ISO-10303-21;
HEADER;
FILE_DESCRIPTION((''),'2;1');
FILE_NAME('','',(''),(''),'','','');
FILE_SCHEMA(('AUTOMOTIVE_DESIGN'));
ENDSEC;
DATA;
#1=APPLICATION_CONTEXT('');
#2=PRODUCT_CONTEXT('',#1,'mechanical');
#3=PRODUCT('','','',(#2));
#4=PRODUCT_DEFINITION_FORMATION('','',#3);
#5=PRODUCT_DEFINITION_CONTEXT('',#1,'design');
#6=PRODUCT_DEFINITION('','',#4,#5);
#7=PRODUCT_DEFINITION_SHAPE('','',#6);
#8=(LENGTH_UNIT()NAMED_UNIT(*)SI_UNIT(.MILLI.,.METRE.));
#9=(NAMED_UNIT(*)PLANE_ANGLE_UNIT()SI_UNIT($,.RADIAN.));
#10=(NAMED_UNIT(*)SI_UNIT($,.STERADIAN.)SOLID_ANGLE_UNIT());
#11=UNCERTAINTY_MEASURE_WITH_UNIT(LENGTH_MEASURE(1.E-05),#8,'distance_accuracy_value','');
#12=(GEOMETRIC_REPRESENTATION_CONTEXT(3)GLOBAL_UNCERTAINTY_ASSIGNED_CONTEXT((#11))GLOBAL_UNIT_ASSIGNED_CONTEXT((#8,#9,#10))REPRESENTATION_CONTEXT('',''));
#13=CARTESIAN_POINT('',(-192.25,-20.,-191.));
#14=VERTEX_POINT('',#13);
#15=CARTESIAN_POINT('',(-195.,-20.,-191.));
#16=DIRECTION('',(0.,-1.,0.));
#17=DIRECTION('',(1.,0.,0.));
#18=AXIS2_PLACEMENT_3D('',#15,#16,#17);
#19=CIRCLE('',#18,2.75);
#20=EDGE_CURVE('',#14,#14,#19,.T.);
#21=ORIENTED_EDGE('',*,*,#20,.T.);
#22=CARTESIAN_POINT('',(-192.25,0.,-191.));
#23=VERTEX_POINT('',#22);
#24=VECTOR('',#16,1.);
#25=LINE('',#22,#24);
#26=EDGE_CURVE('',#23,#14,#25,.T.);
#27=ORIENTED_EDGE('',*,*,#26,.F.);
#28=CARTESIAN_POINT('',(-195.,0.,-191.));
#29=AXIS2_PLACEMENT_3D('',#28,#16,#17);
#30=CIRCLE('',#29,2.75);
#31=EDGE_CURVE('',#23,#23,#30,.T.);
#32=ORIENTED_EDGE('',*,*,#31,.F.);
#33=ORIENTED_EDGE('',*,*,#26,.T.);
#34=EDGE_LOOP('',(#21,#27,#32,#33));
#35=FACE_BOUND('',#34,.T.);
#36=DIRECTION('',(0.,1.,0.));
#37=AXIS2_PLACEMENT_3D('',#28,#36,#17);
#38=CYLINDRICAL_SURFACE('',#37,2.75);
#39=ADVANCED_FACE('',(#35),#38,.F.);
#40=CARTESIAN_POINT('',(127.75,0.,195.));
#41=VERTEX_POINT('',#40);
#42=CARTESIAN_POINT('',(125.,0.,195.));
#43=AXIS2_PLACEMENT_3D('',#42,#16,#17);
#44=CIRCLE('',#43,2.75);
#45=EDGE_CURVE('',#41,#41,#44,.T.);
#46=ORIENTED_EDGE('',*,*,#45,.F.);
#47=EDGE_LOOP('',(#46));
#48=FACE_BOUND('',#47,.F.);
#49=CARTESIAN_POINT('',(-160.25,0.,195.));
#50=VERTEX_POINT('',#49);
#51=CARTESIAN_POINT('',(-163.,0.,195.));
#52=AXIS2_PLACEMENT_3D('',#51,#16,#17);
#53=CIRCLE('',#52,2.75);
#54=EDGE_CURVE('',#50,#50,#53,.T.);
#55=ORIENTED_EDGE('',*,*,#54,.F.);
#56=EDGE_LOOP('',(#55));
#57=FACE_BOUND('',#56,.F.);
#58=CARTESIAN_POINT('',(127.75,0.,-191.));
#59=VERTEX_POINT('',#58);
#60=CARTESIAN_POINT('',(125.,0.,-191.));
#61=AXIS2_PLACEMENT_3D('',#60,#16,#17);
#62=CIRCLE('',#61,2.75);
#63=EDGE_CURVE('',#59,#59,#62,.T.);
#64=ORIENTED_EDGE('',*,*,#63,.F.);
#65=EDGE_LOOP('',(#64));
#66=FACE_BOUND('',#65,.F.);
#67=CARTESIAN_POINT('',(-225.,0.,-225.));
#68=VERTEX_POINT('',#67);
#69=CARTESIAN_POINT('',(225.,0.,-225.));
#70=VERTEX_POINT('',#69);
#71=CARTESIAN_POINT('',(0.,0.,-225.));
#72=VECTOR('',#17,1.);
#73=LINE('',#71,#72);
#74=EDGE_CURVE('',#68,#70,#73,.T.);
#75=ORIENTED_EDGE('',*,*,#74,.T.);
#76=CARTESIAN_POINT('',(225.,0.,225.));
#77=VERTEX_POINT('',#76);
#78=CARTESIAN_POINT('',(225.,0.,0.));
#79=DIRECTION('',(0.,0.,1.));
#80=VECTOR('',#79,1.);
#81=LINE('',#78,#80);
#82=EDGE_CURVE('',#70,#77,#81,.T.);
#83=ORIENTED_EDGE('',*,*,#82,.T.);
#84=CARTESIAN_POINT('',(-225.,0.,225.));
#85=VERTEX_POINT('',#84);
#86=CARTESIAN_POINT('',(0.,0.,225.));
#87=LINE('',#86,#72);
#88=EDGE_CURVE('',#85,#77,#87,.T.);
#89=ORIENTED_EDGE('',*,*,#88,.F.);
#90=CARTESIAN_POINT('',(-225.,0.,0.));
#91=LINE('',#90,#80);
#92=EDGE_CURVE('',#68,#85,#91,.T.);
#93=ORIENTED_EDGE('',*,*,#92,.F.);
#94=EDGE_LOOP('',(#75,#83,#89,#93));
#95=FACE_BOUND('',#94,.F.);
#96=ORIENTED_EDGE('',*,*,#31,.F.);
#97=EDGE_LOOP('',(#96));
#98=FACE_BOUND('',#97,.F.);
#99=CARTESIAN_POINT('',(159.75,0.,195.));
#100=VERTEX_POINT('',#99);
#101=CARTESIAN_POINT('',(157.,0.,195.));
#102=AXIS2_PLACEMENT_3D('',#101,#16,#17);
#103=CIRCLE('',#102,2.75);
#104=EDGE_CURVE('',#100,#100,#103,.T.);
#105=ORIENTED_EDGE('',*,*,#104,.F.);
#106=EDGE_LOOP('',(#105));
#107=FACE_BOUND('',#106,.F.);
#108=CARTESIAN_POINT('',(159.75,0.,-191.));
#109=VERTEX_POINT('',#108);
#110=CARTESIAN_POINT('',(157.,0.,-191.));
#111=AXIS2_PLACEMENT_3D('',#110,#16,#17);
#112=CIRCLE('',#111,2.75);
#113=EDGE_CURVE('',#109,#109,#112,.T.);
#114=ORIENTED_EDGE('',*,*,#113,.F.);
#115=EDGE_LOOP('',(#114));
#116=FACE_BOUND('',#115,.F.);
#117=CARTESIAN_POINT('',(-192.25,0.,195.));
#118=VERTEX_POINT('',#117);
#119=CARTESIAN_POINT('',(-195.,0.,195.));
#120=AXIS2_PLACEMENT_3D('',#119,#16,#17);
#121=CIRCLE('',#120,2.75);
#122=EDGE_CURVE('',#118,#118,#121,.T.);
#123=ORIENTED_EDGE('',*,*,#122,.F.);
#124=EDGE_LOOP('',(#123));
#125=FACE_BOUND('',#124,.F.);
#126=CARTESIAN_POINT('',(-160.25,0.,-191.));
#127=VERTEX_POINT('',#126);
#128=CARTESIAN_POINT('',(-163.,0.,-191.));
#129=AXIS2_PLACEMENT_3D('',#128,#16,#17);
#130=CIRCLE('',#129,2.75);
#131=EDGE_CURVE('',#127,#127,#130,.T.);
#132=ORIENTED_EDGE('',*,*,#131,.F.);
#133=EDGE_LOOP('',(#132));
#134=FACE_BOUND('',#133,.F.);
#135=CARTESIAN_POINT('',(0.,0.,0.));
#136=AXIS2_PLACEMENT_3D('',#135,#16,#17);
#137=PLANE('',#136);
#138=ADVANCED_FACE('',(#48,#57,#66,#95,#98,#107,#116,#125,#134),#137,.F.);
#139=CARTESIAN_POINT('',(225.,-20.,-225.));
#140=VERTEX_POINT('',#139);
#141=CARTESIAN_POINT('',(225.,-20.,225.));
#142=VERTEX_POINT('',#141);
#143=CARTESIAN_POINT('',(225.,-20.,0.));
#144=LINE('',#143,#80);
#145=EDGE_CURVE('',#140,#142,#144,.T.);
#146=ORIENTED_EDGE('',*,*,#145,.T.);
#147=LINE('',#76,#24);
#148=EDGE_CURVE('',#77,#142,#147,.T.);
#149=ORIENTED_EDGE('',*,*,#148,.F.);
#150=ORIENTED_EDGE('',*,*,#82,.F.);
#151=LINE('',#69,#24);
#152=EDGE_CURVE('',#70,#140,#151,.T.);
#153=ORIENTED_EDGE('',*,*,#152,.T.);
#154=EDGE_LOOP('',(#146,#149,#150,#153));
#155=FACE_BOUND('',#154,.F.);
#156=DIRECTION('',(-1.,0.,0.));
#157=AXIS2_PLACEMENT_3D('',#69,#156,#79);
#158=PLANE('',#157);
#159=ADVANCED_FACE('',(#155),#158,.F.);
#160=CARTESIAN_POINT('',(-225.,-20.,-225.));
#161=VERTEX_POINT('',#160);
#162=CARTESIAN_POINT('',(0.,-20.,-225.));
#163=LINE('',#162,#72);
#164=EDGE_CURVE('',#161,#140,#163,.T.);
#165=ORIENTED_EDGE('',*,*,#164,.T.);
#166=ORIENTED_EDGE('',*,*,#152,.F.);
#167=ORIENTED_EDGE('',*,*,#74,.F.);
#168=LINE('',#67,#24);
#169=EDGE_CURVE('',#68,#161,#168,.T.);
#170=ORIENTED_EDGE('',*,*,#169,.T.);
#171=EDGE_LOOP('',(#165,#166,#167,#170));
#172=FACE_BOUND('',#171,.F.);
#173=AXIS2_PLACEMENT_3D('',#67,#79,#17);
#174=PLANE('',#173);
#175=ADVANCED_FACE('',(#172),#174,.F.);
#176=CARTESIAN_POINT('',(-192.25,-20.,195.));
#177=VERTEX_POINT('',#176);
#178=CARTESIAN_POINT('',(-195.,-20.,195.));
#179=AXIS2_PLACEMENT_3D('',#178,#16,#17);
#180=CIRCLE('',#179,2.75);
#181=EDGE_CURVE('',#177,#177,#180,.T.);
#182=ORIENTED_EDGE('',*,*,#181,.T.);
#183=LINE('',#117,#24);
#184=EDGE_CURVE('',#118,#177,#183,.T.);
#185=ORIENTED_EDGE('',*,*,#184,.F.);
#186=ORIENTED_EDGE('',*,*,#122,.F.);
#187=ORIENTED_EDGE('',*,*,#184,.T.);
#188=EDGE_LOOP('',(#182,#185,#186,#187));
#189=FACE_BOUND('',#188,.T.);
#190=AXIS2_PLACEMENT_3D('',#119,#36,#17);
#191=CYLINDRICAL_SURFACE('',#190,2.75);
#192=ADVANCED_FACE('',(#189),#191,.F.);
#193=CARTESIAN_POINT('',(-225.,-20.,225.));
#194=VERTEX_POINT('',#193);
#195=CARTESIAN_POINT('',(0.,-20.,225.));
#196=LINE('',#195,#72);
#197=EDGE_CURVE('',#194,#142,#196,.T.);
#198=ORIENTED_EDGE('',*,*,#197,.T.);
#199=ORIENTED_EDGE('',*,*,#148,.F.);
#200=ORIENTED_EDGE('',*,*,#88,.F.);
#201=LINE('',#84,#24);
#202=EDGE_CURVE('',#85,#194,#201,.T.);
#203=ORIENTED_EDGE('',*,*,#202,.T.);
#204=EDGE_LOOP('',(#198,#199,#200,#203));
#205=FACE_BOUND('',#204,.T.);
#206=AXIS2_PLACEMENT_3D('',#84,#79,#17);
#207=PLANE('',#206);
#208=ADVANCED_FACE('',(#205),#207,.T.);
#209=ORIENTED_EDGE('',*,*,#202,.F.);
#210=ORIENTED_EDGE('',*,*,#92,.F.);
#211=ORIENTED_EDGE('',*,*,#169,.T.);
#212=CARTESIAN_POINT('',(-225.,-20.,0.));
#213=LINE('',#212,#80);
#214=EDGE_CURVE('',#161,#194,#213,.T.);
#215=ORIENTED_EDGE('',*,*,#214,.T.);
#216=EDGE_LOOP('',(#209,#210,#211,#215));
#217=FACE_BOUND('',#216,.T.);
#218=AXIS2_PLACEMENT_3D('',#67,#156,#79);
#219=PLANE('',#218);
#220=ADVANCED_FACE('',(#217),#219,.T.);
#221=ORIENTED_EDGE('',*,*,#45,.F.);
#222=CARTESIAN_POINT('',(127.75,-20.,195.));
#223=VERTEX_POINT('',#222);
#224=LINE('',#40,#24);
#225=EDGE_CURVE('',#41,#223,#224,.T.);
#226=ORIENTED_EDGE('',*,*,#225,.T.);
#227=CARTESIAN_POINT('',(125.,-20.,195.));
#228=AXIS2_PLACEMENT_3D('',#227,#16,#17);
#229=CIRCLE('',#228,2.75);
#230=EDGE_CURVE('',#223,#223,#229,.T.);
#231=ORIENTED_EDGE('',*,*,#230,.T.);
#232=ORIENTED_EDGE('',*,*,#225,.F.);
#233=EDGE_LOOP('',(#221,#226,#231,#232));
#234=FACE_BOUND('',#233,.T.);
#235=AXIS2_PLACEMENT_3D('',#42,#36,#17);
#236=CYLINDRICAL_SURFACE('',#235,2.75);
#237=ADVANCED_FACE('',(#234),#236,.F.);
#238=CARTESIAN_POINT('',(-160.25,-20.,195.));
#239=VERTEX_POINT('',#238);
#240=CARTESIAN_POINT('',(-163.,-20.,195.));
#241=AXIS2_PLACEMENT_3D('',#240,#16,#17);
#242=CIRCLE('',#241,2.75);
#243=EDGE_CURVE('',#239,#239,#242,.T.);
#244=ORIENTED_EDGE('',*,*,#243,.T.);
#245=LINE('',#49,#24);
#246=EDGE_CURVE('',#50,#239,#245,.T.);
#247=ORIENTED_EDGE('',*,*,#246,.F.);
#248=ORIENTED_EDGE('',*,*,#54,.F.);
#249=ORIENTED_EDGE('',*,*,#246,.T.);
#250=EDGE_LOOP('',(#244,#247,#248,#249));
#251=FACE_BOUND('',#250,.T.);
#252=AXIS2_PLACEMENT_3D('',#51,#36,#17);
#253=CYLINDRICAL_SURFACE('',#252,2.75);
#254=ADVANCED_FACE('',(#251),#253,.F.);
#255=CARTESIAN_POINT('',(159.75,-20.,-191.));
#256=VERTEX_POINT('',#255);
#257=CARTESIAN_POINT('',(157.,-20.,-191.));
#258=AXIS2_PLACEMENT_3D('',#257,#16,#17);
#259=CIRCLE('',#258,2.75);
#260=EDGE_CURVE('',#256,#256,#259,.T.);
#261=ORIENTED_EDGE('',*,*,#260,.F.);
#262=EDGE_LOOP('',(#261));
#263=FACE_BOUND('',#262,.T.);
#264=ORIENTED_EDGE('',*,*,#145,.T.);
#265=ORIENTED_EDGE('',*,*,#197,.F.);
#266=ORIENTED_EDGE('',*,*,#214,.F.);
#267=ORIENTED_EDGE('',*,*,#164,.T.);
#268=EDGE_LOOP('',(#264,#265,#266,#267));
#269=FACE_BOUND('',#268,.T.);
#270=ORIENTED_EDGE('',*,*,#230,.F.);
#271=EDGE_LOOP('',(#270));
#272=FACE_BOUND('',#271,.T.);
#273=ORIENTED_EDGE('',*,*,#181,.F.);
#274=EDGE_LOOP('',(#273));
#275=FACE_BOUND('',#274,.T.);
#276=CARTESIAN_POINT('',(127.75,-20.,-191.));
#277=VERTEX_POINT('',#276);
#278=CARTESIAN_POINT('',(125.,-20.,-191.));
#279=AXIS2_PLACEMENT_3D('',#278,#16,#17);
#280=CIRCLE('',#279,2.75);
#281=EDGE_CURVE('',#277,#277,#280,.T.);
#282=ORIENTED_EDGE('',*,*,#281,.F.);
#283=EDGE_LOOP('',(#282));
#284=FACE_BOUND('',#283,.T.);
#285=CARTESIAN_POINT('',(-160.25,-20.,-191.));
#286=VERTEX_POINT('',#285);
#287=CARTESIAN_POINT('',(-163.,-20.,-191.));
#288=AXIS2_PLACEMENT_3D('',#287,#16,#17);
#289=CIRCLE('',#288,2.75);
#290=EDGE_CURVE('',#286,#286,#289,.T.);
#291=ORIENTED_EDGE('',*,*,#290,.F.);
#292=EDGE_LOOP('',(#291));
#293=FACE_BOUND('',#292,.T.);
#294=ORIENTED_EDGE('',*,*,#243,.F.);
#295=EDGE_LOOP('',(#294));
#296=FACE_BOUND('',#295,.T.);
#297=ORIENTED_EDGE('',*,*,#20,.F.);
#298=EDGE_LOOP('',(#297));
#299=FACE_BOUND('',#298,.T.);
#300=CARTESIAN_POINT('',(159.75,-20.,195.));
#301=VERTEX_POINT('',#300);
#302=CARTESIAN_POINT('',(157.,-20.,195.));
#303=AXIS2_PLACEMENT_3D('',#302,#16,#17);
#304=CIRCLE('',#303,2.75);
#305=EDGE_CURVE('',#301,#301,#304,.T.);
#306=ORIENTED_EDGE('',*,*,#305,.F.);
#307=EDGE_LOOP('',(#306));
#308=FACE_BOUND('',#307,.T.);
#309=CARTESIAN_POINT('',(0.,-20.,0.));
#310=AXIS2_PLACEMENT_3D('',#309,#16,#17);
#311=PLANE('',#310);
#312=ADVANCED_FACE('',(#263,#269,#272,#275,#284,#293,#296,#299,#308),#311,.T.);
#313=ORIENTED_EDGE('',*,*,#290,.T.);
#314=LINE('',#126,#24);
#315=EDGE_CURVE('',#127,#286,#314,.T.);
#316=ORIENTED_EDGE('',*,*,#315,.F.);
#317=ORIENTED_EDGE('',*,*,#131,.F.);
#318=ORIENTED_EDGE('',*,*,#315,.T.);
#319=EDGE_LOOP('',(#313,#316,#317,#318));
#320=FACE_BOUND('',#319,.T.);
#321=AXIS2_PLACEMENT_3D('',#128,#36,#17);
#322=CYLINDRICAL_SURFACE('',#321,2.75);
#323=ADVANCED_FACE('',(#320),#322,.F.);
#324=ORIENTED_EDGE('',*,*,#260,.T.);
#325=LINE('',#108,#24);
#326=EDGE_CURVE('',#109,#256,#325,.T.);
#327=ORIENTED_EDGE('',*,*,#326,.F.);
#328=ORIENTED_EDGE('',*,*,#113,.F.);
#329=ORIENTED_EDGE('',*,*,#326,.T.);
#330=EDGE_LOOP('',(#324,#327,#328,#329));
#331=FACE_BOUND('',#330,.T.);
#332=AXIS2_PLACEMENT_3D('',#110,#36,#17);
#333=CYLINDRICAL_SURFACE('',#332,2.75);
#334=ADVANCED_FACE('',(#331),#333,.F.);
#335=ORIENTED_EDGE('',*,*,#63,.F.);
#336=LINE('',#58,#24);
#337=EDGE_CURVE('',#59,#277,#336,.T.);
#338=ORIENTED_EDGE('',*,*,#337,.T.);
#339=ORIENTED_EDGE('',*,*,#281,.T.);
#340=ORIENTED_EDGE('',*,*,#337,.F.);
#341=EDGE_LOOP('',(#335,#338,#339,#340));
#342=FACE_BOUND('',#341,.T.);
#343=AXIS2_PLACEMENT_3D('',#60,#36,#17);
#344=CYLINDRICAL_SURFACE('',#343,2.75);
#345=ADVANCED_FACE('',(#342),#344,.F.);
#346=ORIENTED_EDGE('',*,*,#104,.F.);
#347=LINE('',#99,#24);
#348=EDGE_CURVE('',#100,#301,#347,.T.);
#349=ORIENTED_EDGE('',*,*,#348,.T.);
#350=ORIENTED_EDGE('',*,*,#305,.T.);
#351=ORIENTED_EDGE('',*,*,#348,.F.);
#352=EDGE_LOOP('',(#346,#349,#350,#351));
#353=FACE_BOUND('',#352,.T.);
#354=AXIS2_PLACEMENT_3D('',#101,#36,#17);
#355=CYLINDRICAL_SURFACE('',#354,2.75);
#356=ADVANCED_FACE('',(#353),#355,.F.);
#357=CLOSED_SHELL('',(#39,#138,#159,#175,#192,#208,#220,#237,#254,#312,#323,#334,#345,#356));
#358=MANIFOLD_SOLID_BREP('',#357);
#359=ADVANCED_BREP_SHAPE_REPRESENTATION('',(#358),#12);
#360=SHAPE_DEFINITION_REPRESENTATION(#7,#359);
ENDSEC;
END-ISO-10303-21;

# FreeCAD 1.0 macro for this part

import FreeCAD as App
import Part
import Sketcher
from FreeCAD import Vector


def add_polygon(sketch, points):
    """Adds a closed chain of lines whose ends are joined by coincident constraints."""
    first, n = sketch.GeometryCount, len(points)
    for a, b in zip(points, points[1:] + points[:1]):
        sketch.addGeometry(Part.LineSegment(App.Vector(*a, 0), App.Vector(*b, 0)), False)
    for i in range(n):
        sketch.addConstraint(Sketcher.Constraint("Coincident", first + i, 2, first + (i + 1) % n, 1))

doc = App.newDocument("Part")
body = doc.addObject("PartDesign::Body", "Body")

sketch1 = body.newObject("Sketcher::SketchObject", "Sketch")
sketch1.AttachmentSupport = (doc.getObject("XZ_Plane"), [""])
sketch1.MapMode = "FlatFace"
add_polygon(sketch1, [(-225, 225), (-225, -225), (225, -225), (225, 225)])
sketch1.addGeometry(Part.Circle(Vector(-195, -191, 0), Vector(0, 0, 1), 2.8), False)
sketch1.addGeometry(Part.Circle(Vector(-163, -191, 0), Vector(0, 0, 1), 2.8), False)
sketch1.addGeometry(Part.Circle(Vector(125, -191, 0), Vector(0, 0, 1), 2.8), False)
sketch1.addGeometry(Part.Circle(Vector(157, -191, 0), Vector(0, 0, 1), 2.8), False)
sketch1.addGeometry(Part.Circle(Vector(-195, 195, 0), Vector(0, 0, 1), 2.8), False)
sketch1.addGeometry(Part.Circle(Vector(-163, 195, 0), Vector(0, 0, 1), 2.8), False)
sketch1.addGeometry(Part.Circle(Vector(125, 195, 0), Vector(0, 0, 1), 2.8), False)
sketch1.addGeometry(Part.Circle(Vector(157, 195, 0), Vector(0, 0, 1), 2.8), False)
sketch1.addConstraint([
    Sketcher.Constraint("Vertical", 0),
    Sketcher.Constraint("Horizontal", 1),
    Sketcher.Constraint("Vertical", 2),
    Sketcher.Constraint("Horizontal", 3),
    Sketcher.Constraint("Equal", 4, 5),
    Sketcher.Constraint("Equal", 5, 6),
    Sketcher.Constraint("Equal", 6, 7),
    Sketcher.Constraint("Equal", 7, 8),
    Sketcher.Constraint("Equal", 8, 9),
    Sketcher.Constraint("Equal", 9, 10),
    Sketcher.Constraint("Equal", 10, 11),
    Sketcher.Constraint("Symmetric", 0, 2, 2, 2, -1, 1),
    Sketcher.Constraint("Horizontal", 4, 3, 5, 3),
    Sketcher.Constraint("Horizontal", 5, 3, 6, 3),
    Sketcher.Constraint("Horizontal", 6, 3, 7, 3),
    Sketcher.Constraint("Horizontal", 8, 3, 9, 3),
    Sketcher.Constraint("Horizontal", 9, 3, 10, 3),
    Sketcher.Constraint("Horizontal", 10, 3, 11, 3),
    Sketcher.Constraint("Vertical", 4, 3, 8, 3),
    Sketcher.Constraint("Vertical", 5, 3, 9, 3),
    Sketcher.Constraint("Vertical", 6, 3, 10, 3),
    Sketcher.Constraint("Vertical", 7, 3, 11, 3),
    Sketcher.Constraint("Equal", 3, 0),
    Sketcher.Constraint("Diameter", 4, 5.5),
    Sketcher.Constraint("DistanceX", 1, 1, 1, 2, 450.0),
    Sketcher.Constraint("DistanceX", 4, 3, -1, 1, 195.0),
    Sketcher.Constraint("DistanceY", 4, 3, -1, 1, 191.0),
    Sketcher.Constraint("DistanceX", 5, 3, -1, 1, 163.0),
    Sketcher.Constraint("DistanceX", -1, 1, 6, 3, 125.0),
    Sketcher.Constraint("DistanceX", -1, 1, 7, 3, 157.0),
    Sketcher.Constraint("DistanceY", -1, 1, 8, 3, 195.0),
])
pad1 = body.newObject("PartDesign::Pad", "Pad")
pad1.Profile = sketch1
pad1.Length = 20

doc.recompute()
